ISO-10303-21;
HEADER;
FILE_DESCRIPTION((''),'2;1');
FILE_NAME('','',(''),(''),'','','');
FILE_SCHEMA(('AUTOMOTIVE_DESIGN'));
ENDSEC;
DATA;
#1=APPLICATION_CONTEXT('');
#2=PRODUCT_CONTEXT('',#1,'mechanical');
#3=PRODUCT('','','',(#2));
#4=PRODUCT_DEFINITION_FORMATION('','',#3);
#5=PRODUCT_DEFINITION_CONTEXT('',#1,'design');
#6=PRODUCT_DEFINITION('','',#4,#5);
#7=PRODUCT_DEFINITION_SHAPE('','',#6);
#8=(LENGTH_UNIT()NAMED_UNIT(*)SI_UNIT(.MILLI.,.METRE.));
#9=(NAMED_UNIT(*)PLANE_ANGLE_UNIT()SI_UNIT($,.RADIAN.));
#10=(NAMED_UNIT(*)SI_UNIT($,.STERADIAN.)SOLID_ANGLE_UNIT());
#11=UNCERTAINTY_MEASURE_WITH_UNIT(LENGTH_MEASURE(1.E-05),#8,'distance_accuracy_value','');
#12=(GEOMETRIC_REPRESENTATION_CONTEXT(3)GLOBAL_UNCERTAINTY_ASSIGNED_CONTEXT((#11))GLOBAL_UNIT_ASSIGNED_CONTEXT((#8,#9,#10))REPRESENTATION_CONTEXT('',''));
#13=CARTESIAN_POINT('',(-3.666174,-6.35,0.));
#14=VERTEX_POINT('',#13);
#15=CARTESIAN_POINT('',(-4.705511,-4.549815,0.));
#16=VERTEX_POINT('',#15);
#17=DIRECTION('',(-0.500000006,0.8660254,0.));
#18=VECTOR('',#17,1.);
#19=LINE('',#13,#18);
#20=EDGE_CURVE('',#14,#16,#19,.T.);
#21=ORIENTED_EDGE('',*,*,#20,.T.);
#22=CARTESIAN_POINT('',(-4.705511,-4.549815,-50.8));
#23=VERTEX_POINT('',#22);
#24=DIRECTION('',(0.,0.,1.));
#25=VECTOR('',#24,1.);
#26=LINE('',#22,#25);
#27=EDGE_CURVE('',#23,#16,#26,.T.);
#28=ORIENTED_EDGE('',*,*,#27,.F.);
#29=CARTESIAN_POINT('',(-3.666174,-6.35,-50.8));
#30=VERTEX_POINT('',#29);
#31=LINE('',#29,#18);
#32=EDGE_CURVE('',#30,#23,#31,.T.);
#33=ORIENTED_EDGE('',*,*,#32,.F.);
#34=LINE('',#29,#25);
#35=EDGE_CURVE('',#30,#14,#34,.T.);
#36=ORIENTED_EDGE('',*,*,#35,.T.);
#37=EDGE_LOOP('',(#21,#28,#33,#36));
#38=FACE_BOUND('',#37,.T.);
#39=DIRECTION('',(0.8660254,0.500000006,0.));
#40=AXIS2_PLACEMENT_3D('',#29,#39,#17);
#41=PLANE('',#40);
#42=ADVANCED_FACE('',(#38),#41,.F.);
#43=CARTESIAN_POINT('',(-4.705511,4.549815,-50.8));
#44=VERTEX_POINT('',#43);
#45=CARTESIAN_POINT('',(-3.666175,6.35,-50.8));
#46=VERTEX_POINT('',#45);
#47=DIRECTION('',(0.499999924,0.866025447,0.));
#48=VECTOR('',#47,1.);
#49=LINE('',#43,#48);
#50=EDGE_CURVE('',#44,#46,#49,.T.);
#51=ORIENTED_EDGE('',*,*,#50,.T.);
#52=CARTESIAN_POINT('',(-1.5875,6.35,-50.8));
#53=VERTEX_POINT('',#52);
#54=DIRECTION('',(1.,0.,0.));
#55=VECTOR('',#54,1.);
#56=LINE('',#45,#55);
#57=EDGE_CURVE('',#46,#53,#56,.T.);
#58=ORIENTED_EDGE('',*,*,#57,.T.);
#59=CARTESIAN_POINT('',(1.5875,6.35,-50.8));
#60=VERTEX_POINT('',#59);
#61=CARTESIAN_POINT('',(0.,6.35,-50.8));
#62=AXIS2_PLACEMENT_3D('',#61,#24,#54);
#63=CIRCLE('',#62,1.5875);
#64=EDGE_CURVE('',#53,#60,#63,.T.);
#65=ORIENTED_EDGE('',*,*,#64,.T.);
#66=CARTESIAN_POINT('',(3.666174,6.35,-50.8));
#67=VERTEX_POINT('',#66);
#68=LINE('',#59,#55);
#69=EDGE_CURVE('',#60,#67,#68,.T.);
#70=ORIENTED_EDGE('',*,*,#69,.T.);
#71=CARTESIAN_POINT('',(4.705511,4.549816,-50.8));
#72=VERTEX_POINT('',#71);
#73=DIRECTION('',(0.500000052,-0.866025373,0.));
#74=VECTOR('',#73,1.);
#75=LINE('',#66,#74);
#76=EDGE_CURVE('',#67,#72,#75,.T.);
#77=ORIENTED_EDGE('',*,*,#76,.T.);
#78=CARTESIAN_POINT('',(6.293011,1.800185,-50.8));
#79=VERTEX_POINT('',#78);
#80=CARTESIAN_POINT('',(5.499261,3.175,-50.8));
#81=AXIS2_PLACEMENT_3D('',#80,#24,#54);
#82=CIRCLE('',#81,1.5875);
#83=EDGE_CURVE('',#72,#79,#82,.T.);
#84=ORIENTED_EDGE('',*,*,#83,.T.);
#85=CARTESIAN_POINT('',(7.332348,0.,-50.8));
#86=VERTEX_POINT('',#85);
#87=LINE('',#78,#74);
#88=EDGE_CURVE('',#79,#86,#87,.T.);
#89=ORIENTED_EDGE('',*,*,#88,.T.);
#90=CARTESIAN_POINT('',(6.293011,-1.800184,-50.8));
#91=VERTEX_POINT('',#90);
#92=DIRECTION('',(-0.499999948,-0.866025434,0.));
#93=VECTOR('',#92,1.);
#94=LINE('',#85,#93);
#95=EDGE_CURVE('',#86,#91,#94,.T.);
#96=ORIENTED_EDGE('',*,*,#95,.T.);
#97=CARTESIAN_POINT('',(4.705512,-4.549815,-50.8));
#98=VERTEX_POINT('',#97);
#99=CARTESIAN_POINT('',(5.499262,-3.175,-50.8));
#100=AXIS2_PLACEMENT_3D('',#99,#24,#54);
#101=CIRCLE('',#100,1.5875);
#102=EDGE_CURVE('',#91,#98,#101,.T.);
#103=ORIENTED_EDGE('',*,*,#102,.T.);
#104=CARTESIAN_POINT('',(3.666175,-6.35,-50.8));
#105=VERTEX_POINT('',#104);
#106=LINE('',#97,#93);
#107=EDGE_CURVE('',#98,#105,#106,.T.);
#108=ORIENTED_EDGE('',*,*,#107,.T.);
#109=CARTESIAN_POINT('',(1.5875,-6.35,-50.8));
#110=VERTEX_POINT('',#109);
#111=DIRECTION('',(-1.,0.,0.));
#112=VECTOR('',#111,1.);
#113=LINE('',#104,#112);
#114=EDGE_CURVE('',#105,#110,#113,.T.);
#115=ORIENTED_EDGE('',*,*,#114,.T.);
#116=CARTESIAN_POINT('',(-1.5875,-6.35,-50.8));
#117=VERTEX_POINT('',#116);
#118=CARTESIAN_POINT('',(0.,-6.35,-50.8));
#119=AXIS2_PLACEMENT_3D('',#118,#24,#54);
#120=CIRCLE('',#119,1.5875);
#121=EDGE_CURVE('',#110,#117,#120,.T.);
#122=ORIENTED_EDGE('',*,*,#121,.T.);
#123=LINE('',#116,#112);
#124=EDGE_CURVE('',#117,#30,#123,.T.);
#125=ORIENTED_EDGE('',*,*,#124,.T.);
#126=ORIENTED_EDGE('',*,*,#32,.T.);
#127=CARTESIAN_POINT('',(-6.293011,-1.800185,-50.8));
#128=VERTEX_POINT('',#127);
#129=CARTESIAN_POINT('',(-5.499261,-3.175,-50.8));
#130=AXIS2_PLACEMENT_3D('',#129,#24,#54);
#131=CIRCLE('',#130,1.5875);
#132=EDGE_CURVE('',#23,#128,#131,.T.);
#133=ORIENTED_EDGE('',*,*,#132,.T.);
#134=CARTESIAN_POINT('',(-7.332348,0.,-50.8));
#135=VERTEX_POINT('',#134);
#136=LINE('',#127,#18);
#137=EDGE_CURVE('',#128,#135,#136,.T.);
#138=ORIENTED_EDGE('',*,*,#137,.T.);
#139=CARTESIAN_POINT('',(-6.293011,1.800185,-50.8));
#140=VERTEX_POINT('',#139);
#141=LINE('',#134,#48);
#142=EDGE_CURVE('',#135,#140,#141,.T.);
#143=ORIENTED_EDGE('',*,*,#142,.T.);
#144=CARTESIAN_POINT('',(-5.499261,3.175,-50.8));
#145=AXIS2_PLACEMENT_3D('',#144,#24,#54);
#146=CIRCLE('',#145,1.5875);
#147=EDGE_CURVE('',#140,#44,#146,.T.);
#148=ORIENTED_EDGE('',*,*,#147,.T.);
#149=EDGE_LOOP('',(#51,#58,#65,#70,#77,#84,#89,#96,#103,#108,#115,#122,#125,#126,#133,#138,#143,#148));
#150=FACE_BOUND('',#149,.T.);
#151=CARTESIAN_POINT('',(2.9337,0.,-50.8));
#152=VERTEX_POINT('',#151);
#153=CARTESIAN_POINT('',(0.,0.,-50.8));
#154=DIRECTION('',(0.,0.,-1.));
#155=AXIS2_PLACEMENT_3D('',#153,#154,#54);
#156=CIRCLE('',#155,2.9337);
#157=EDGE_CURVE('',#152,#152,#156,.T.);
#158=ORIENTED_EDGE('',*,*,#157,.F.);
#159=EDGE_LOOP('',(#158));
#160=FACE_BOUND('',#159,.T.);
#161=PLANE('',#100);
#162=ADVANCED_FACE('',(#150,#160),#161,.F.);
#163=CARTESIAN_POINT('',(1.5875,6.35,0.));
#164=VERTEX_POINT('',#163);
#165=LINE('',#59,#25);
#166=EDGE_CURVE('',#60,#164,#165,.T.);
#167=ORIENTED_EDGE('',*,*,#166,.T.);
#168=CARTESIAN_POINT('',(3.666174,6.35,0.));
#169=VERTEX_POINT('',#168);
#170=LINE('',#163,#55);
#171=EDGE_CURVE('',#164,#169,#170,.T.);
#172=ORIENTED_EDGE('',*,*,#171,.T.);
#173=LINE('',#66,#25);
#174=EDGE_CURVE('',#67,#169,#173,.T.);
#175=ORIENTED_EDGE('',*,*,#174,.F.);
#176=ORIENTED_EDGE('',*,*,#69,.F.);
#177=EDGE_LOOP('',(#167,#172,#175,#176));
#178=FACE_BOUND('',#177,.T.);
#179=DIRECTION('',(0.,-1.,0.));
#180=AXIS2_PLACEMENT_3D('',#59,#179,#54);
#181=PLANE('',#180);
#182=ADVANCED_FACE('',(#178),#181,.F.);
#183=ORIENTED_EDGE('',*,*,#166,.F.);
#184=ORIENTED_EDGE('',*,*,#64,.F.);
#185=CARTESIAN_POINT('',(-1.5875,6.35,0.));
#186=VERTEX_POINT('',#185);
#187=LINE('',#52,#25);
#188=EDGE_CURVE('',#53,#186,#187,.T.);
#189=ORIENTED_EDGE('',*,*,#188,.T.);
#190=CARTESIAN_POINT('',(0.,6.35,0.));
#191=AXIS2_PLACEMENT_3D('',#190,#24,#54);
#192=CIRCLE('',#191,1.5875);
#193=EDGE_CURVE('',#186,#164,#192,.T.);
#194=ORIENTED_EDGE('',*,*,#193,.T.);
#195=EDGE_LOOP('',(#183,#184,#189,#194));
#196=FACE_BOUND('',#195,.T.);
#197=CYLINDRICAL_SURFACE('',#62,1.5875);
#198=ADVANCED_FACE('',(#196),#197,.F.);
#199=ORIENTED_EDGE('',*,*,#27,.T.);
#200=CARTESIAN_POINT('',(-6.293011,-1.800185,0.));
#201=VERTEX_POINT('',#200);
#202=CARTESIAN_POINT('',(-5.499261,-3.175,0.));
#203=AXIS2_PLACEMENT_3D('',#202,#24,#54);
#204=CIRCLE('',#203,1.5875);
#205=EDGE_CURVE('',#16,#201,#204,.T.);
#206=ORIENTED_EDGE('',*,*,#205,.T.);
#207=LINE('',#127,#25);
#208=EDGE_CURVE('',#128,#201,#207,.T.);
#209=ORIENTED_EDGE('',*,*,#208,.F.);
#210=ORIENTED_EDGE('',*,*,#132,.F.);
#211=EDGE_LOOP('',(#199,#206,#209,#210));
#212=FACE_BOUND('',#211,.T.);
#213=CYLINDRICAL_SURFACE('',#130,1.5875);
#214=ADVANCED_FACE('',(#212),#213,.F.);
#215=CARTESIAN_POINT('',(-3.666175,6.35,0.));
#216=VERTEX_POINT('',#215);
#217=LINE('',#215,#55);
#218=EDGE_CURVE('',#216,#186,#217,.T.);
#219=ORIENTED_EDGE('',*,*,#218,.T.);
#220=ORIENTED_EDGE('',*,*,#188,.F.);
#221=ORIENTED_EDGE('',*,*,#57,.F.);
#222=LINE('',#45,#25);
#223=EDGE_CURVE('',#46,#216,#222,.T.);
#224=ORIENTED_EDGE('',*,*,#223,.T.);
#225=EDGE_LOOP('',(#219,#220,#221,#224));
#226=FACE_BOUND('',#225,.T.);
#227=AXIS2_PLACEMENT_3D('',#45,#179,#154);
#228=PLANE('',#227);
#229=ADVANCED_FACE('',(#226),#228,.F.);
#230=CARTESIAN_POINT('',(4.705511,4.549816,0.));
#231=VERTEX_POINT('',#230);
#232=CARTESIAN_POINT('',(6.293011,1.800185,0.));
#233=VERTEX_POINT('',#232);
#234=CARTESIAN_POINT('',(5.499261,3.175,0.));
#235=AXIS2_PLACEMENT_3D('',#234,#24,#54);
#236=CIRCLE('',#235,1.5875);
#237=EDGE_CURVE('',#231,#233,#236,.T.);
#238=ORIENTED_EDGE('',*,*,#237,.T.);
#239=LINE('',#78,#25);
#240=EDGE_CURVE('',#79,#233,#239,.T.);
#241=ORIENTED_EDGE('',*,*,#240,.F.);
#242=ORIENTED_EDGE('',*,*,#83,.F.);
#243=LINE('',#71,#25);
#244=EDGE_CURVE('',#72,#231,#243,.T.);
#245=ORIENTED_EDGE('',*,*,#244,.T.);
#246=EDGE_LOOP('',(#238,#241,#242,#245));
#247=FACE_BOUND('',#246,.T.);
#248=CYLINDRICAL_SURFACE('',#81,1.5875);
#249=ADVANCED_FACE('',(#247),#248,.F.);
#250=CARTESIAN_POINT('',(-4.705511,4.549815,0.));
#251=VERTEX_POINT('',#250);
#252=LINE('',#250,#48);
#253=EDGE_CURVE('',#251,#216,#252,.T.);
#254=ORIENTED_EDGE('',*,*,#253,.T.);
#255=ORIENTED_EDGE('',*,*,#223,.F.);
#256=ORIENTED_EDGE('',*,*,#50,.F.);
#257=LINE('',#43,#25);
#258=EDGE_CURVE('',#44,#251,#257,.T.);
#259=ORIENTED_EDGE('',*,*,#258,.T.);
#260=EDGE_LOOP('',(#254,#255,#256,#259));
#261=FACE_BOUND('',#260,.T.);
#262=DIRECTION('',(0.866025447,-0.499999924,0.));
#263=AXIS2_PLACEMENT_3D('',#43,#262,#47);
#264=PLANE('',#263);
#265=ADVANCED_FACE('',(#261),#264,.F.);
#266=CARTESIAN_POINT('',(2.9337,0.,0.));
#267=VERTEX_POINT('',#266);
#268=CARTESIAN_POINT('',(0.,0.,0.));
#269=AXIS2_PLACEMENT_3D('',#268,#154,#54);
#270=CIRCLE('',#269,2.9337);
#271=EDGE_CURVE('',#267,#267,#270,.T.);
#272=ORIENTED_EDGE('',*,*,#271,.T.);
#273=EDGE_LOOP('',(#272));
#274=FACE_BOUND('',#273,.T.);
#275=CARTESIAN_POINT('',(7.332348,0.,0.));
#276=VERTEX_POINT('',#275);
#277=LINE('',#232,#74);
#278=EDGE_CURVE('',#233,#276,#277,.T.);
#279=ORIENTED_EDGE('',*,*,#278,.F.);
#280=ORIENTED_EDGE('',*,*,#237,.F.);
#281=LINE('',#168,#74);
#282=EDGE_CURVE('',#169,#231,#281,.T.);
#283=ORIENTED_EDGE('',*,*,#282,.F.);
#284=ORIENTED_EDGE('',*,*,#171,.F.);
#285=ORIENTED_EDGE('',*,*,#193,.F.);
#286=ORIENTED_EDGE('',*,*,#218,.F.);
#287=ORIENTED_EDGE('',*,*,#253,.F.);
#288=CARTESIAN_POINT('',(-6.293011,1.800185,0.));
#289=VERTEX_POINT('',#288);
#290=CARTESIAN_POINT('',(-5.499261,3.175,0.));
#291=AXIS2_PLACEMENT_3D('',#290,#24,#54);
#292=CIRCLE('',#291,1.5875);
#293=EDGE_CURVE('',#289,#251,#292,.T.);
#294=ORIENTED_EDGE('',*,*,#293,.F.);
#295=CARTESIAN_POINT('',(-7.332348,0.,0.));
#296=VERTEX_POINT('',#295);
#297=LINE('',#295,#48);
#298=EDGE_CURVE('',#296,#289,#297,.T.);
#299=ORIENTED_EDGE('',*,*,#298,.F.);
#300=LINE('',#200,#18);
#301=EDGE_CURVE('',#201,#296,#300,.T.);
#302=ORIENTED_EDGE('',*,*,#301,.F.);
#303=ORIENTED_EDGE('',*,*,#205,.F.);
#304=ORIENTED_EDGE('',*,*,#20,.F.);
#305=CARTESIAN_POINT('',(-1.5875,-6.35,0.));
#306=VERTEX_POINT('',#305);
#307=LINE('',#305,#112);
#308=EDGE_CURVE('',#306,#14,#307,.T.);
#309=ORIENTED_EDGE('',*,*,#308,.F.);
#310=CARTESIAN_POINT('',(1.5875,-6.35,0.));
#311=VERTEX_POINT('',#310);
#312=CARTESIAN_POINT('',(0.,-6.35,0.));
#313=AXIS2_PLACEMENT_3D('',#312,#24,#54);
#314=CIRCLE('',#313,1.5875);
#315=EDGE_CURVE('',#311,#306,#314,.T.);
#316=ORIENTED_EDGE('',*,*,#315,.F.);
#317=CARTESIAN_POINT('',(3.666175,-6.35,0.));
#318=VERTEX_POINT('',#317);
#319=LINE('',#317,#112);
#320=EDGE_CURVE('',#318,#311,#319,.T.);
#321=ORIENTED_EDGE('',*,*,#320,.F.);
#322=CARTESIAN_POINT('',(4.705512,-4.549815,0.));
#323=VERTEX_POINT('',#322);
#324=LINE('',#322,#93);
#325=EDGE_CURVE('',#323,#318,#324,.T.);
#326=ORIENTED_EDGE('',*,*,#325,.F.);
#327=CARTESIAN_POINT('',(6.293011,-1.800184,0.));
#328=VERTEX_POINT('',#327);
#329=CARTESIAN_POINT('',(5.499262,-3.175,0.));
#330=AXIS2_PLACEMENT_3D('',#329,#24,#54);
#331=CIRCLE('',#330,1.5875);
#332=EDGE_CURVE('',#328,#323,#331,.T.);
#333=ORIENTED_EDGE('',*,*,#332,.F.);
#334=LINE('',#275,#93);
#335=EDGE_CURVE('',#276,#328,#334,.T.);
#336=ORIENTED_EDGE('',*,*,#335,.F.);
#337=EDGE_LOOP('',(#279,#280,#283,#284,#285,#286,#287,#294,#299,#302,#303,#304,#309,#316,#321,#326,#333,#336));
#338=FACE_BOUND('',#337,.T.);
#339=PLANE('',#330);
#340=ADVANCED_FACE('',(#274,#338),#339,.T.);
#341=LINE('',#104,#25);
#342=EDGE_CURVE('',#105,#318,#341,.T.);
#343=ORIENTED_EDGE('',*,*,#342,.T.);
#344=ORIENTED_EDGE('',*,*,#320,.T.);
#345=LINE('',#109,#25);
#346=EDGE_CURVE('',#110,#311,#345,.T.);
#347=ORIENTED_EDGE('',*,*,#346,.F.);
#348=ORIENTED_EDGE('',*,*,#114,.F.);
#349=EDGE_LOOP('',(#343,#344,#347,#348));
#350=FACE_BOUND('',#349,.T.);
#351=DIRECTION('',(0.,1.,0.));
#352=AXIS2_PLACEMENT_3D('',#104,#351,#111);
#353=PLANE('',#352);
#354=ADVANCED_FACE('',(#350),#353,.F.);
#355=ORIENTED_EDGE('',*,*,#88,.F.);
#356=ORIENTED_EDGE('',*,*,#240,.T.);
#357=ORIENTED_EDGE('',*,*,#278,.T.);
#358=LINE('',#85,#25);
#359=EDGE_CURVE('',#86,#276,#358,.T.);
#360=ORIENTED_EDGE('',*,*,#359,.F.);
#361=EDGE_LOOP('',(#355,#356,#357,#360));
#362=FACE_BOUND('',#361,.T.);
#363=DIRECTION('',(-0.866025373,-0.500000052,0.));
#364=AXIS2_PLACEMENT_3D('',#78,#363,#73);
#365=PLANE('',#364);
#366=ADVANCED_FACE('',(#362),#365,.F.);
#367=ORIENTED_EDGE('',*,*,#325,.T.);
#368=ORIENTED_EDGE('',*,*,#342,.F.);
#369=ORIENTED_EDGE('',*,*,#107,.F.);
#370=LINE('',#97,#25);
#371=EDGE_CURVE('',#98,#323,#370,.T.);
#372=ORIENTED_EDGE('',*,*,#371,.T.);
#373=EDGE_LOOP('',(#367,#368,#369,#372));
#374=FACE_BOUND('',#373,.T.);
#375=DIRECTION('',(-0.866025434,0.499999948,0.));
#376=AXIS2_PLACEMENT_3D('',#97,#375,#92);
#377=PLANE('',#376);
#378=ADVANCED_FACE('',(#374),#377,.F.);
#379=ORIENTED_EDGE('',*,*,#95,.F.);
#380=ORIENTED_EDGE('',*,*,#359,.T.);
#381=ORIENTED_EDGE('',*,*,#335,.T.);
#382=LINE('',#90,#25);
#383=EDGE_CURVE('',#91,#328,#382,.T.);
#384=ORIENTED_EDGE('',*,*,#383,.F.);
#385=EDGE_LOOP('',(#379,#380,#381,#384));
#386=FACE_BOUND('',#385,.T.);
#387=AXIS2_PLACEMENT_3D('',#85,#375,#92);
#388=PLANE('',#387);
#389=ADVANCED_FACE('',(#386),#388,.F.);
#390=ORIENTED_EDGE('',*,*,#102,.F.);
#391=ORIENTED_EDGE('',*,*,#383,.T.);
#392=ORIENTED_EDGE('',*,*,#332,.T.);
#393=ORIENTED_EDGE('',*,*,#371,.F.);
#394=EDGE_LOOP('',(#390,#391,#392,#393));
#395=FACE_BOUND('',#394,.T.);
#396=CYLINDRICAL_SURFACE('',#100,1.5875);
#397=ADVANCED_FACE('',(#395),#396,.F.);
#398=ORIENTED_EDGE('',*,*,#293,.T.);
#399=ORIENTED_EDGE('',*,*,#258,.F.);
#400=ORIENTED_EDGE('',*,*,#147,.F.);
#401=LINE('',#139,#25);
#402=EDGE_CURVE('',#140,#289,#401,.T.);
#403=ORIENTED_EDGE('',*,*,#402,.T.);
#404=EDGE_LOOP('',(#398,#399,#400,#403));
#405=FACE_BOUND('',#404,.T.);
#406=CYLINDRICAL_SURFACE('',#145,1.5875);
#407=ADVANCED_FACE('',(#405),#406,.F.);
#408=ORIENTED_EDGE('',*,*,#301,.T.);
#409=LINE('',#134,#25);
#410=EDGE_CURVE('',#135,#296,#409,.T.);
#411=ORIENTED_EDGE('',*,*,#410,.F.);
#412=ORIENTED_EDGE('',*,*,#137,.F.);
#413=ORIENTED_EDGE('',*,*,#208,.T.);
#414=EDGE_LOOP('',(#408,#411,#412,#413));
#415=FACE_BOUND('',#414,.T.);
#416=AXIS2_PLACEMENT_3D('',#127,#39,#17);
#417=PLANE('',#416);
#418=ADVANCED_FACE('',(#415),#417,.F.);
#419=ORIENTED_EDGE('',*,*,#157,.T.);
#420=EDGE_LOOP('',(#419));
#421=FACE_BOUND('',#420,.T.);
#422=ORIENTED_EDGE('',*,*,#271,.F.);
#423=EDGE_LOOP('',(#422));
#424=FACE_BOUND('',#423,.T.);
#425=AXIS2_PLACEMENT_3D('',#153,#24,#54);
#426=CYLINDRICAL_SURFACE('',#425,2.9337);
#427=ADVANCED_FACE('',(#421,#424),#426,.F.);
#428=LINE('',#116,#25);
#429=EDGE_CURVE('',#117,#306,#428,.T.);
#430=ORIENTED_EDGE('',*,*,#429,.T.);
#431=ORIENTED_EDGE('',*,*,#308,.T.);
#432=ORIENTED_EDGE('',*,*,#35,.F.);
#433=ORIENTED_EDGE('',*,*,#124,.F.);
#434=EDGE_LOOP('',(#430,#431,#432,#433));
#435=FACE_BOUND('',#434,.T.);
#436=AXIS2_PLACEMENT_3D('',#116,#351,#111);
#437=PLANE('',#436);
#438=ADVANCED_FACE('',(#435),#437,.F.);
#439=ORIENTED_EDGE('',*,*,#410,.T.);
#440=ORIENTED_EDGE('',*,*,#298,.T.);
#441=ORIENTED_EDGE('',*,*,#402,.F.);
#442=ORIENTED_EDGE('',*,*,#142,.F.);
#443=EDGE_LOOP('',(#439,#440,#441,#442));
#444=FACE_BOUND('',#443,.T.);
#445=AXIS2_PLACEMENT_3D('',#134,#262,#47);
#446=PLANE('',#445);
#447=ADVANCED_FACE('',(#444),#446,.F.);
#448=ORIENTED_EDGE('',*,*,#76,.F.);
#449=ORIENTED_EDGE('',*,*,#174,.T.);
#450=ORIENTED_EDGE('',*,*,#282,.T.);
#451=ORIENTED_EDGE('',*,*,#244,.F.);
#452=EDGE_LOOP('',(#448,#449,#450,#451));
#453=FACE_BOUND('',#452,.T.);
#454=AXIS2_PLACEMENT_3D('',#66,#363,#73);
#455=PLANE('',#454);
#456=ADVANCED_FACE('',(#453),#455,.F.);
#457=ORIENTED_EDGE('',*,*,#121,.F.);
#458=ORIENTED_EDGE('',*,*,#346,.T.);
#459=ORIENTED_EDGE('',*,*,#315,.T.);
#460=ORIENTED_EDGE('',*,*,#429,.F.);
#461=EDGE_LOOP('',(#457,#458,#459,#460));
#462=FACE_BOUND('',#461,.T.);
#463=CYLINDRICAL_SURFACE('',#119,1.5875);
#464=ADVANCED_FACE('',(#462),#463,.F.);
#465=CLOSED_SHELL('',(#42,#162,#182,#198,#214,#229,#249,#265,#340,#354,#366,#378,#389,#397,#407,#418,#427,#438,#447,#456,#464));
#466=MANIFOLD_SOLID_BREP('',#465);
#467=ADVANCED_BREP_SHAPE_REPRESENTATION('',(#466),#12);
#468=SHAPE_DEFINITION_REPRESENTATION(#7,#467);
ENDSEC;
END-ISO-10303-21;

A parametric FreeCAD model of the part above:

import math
import FreeCAD as App
import Part
import Sketcher

V = App.Vector
Q = App.Units.Quantity

doc = App.newDocument("Part")
body = doc.addObject("PartDesign::Body", "Body")

sketch1 = body.newObject("Sketcher::SketchObject", "Sketch")
sketch1.AttachmentSupport = (doc.getObject("XY_Plane"), [""])
sketch1.MapMode = "FlatFace"
sketch1.addGeometry([
    Part.LineSegment(V(4.7, -4.5, 0), V(3.7, -6.3, 0)),
    Part.LineSegment(V(3.7, -6.3, 0), V(1.6, -6.3, 0)),
    Part.ArcOfCircle(Part.Circle(V(0, -6.3, 0), V(0, 0, 1), 1.6), math.radians(0), math.radians(180)),
    Part.LineSegment(V(-1.6, -6.3, 0), V(-3.7, -6.3, 0)),
    Part.LineSegment(V(-3.7, -6.3, 0), V(-4.7, -4.5, 0)),
    Part.ArcOfCircle(Part.Circle(V(-5.5, -3.2, 0), V(0, 0, 1), 1.6), math.radians(-60), math.radians(120)),
    Part.LineSegment(V(-6.3, -1.8, 0), V(-7.3, 0, 0)),
    Part.LineSegment(V(-7.3, 0, 0), V(-6.3, 1.8, 0)),
    Part.ArcOfCircle(Part.Circle(V(-5.5, 3.2, 0), V(0, 0, 1), 1.6), math.radians(-120), math.radians(60)),
    Part.LineSegment(V(-4.7, 4.5, 0), V(-3.7, 6.4, 0)),
    Part.LineSegment(V(-3.7, 6.4, 0), V(-1.6, 6.4, 0)),
    Part.ArcOfCircle(Part.Circle(V(0, 6.4, 0), V(0, 0, 1), 1.6), math.radians(180), math.radians(360)),
    Part.LineSegment(V(1.6, 6.4, 0), V(3.7, 6.4, 0)),
    Part.LineSegment(V(3.7, 6.4, 0), V(4.7, 4.5, 0)),
    Part.ArcOfCircle(Part.Circle(V(5.5, 3.2, 0), V(0, 0, 1), 1.6), math.radians(120), math.radians(300)),
    Part.LineSegment(V(6.3, 1.8, 0), V(7.3, 0, 0)),
    Part.LineSegment(V(7.3, 0, 0), V(6.3, -1.8, 0)),
    Part.ArcOfCircle(Part.Circle(V(5.5, -3.2, 0), V(0, 0, 1), 1.6), math.radians(60), math.radians(240)),
    Part.Circle(V(0, 0, 0), V(0, 0, 1), 2.9),
], False)
sketch1.addConstraint([
    Sketcher.Constraint("Coincident", 0, 2, 1, 1),
    Sketcher.Constraint("Coincident", 1, 2, 2, 1),
    Sketcher.Constraint("Coincident", 2, 2, 3, 1),
    Sketcher.Constraint("Coincident", 3, 2, 4, 1),
    Sketcher.Constraint("Coincident", 4, 2, 5, 1),
    Sketcher.Constraint("Coincident", 5, 2, 6, 1),
    Sketcher.Constraint("Coincident", 6, 2, 7, 1),
    Sketcher.Constraint("Coincident", 7, 2, 8, 1),
    Sketcher.Constraint("Coincident", 8, 2, 9, 1),
    Sketcher.Constraint("Coincident", 9, 2, 10, 1),
    Sketcher.Constraint("Coincident", 10, 2, 11, 1),
    Sketcher.Constraint("Coincident", 11, 2, 12, 1),
    Sketcher.Constraint("Coincident", 12, 2, 13, 1),
    Sketcher.Constraint("Coincident", 13, 2, 14, 1),
    Sketcher.Constraint("Coincident", 14, 2, 15, 1),
    Sketcher.Constraint("Coincident", 15, 2, 16, 1),
    Sketcher.Constraint("Coincident", 16, 2, 17, 1),
    Sketcher.Constraint("Coincident", 17, 2, 0, 1),
    Sketcher.Constraint("Horizontal", 1),
    Sketcher.Constraint("Horizontal", 3),
    Sketcher.Constraint("Horizontal", 10),
    Sketcher.Constraint("Horizontal", 12),
    Sketcher.Constraint("Coincident", 18, 3, -1, 1),
    Sketcher.Constraint("Equal", 2, 5),
    Sketcher.Constraint("Equal", 5, 8),
    Sketcher.Constraint("Equal", 8, 11),
    Sketcher.Constraint("Equal", 11, 14),
    Sketcher.Constraint("Equal", 14, 17),
    Sketcher.Constraint("Symmetric", 2, 3, 11, 3, -1, 1),
    Sketcher.Constraint("Symmetric", 5, 3, 14, 3, -1, 1),
    Sketcher.Constraint("Symmetric", 8, 3, 17, 3, -1, 1),
    Sketcher.Constraint("Symmetric", 0, 2, 9, 2, -1, 1),
    Sketcher.Constraint("Symmetric", 3, 2, 12, 2, -1, 1),
    Sketcher.Constraint("Symmetric", 6, 2, 15, 2, -1, 1),
    Sketcher.Constraint("Symmetric", 8, 3, 14, 3, -2),
    Sketcher.Constraint("Symmetric", 1, 2, 2, 2, -2),
    Sketcher.Constraint("PointOnObject", 6, 2, -1),
    Sketcher.Constraint("Parallel", 4, 6),
    Sketcher.Constraint("Parallel", 0, 7),
    Sketcher.Constraint("Parallel", 7, 9),
    Sketcher.Constraint("Parallel", 6, 13),
    Sketcher.Constraint("Parallel", 13, 15),
    Sketcher.Constraint("Parallel", 9, 16),
    Sketcher.Constraint("Horizontal", 2, 3, 0, 2),
    Sketcher.Constraint("Horizontal", 8, 2, 13, 2),
    Sketcher.Constraint("Horizontal", 7, 2, 14, 2),
    Sketcher.Constraint("Equal", 4, 6),
    Sketcher.Constraint("Diameter", 18, Q("0.231 in")),
    Sketcher.Constraint("Angle", 0, Q("-119.999997 deg")),
    Sketcher.Constraint("Radius", 2, Q("0.0625 in")),
    Sketcher.Constraint("DistanceY", 2, 3, 11, 3, Q("0.5 in")),
    Sketcher.Constraint("DistanceY", 5, 3, 8, 3, Q("0.25 in")),
    Sketcher.Constraint("DistanceX", 5, 3, 4, 2, Q("0.03125 in")),
    Sketcher.Constraint("DistanceX", 1, 2, 1, 1, 2.078674),
])
pad1 = body.newObject("PartDesign::Pad", "Pad")
pad1.Profile = sketch1
pad1.Length = Q("2 in")
pad1.Reversed = True

doc.recompute()
